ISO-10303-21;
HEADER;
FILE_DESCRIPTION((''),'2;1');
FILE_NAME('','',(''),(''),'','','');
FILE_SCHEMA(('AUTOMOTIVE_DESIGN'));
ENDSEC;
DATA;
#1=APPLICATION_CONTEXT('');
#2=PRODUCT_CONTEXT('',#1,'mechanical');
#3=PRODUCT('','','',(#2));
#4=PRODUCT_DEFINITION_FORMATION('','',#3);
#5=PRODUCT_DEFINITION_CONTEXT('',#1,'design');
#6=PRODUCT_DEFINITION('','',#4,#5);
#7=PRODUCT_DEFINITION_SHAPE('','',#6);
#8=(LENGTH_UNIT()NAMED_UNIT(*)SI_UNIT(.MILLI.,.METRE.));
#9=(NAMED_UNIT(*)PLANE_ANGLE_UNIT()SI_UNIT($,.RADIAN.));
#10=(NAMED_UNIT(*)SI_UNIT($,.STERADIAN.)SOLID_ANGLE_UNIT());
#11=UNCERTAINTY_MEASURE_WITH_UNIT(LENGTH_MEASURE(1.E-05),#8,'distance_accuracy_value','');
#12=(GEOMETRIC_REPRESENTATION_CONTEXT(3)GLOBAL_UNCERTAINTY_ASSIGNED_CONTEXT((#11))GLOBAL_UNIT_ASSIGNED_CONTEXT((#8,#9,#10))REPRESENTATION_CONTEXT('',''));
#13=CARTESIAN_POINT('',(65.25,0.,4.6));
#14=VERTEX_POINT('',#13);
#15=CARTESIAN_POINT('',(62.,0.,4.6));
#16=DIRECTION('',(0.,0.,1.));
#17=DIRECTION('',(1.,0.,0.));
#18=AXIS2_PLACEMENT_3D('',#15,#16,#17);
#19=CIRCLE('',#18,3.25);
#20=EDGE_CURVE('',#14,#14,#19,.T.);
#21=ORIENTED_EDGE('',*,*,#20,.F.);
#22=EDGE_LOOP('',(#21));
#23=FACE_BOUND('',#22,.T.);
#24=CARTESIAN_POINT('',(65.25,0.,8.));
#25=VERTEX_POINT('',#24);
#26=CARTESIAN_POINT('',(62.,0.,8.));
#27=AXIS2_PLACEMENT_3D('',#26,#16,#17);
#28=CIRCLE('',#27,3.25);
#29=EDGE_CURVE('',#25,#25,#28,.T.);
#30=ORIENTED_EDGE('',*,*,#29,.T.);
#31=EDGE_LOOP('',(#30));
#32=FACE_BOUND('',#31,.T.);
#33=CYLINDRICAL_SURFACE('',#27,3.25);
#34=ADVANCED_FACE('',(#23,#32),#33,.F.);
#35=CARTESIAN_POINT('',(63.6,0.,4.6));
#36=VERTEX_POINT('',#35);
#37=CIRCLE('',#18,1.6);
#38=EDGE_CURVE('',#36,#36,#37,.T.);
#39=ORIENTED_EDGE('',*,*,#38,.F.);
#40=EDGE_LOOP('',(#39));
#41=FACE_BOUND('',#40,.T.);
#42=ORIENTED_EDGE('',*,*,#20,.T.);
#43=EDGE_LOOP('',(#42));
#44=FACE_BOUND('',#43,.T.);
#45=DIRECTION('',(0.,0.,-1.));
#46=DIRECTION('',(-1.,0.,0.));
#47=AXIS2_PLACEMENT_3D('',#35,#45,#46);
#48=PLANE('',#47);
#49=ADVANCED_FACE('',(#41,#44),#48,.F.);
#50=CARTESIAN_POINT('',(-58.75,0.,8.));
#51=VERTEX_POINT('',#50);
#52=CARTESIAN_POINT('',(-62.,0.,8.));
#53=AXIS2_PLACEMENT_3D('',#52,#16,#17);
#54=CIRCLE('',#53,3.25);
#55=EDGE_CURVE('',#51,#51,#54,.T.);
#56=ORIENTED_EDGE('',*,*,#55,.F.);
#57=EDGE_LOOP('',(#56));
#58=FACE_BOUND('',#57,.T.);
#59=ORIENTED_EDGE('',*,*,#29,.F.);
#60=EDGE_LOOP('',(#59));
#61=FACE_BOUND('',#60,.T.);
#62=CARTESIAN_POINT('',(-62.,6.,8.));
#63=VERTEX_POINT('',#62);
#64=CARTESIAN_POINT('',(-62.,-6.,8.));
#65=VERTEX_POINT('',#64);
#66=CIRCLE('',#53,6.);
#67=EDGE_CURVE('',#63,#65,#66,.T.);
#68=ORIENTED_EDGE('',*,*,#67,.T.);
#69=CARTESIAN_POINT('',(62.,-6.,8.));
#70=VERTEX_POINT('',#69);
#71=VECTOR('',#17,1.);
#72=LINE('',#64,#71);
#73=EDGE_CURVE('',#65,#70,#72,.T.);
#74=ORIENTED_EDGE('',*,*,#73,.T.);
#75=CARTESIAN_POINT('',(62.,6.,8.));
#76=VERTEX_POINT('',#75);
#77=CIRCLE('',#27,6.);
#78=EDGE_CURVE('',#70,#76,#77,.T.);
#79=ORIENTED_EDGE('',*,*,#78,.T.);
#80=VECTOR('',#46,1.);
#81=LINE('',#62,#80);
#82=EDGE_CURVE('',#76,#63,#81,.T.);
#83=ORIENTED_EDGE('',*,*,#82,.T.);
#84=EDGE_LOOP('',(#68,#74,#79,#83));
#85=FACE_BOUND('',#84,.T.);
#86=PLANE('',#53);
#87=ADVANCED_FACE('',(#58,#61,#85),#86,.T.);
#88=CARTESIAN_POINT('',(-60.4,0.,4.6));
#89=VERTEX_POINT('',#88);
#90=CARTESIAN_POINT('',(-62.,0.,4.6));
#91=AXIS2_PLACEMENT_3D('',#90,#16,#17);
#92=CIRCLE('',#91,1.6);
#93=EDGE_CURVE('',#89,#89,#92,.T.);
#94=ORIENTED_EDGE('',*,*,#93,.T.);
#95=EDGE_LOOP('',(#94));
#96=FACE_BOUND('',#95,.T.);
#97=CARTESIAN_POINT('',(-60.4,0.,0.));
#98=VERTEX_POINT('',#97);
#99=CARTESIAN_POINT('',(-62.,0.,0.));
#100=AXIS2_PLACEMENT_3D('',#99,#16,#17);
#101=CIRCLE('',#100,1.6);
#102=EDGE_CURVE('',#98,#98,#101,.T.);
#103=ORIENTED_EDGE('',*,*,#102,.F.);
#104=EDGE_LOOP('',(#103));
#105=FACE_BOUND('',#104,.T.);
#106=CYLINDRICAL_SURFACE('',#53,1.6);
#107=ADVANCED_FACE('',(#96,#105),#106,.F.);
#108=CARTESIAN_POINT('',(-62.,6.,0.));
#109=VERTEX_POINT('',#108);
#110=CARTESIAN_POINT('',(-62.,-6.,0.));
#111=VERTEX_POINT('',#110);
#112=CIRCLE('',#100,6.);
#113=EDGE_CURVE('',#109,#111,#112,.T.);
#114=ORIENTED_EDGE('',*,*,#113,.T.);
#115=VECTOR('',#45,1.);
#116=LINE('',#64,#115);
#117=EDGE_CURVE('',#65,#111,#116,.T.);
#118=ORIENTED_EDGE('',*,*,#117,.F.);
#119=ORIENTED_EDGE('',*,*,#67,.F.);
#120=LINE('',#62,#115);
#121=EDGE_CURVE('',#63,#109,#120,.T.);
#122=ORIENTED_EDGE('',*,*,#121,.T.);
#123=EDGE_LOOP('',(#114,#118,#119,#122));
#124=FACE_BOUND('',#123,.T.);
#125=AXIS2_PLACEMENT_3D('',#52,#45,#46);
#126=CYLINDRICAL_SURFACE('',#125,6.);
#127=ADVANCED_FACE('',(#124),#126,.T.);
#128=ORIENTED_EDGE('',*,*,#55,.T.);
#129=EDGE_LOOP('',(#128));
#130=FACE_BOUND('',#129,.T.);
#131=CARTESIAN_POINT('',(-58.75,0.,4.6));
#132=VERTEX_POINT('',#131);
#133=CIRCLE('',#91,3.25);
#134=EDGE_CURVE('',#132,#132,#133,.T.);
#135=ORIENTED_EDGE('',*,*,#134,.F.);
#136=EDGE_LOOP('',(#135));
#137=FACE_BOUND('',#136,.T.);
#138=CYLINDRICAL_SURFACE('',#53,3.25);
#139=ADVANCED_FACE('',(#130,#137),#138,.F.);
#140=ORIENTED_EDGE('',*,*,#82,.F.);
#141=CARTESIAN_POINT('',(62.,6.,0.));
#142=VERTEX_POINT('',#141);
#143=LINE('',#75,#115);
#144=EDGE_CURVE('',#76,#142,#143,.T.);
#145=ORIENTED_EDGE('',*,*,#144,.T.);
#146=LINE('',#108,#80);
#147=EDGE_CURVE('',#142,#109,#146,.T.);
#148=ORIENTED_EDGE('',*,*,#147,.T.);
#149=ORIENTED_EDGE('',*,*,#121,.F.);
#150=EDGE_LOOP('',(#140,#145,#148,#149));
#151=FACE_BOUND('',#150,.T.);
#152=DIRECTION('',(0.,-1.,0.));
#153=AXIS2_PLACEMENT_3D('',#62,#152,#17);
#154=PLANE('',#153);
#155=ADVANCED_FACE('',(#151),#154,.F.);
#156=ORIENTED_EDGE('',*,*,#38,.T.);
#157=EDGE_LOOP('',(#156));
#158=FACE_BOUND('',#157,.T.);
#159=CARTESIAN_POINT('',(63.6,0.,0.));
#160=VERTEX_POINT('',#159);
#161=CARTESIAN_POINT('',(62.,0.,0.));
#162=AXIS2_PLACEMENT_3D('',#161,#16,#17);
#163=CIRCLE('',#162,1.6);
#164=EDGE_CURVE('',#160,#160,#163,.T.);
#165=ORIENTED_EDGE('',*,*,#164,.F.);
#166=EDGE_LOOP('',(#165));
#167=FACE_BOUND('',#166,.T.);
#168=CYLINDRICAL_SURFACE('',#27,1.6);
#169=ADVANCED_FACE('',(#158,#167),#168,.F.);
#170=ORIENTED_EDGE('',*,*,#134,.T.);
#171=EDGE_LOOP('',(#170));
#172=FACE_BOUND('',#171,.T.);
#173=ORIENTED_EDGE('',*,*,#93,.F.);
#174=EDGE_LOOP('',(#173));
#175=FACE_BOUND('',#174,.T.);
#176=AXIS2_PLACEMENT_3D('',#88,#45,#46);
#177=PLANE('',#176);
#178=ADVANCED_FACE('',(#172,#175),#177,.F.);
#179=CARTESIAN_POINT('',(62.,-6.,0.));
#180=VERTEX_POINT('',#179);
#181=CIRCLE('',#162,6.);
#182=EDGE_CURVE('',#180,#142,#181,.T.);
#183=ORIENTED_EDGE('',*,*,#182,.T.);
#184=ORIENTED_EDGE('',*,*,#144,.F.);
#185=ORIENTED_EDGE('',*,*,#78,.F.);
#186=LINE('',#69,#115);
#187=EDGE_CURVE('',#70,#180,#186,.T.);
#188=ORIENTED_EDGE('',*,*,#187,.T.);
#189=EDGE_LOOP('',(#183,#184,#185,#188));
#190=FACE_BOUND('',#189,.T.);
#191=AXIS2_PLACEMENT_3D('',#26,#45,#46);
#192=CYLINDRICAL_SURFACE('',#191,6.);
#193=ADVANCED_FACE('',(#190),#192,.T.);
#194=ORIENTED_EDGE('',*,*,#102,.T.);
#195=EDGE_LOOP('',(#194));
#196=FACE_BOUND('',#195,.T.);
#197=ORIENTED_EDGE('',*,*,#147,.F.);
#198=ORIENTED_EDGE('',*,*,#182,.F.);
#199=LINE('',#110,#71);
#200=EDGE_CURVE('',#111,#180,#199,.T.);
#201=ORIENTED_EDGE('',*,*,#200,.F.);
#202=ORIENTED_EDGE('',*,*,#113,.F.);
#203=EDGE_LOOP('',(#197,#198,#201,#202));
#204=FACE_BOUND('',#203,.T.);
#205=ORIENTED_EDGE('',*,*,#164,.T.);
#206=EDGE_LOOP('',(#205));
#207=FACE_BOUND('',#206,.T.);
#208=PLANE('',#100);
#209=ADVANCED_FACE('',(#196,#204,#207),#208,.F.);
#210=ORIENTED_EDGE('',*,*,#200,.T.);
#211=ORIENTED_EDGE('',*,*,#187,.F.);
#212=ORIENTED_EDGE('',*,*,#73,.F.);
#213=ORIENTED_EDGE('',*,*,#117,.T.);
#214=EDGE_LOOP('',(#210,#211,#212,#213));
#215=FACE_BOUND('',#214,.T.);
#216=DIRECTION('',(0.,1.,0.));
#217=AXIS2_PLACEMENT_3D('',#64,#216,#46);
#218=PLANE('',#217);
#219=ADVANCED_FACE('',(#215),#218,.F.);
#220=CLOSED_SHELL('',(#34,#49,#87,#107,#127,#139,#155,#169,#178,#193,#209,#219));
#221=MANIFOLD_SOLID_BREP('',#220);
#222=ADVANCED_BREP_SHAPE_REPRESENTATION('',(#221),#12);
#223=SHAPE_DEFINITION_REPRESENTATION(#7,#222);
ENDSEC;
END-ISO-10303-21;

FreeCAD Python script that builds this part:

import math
import FreeCAD as App
import Part
import Sketcher
from FreeCAD import Vector

doc = App.newDocument("Part")
body = doc.addObject("PartDesign::Body", "Body")

# Sketch on XY plane
sketch1 = doc.addObject("Sketcher::SketchObject", "Sketch")
body.addObject(sketch1)
sketch1.AttachmentSupport = (doc.XY_Plane, [""])
sketch1.MapMode = "FlatFace"
sketch1.addGeometry(Part.LineSegment(Vector(62, 6, 0), Vector(-62, 6, 0)), False)
sketch1.addGeometry(Part.ArcOfCircle(Part.Circle(Vector(-62, 0, 0), Vector(0, 0, 1), 6), math.radians(90), math.radians(270)), False)
sketch1.addGeometry(Part.LineSegment(Vector(-62, -6, 0), Vector(62, -6, 0)), False)
sketch1.addGeometry(Part.ArcOfCircle(Part.Circle(Vector(62, 0, 0), Vector(0, 0, 1), 6), math.radians(-90), math.radians(90)), False)
sketch1.addConstraint(Sketcher.Constraint("Tangent", 0, 2, 1, 1))
sketch1.addConstraint(Sketcher.Constraint("Tangent", 1, 2, 2, 1))
sketch1.addConstraint(Sketcher.Constraint("Tangent", 2, 2, 3, 1))
sketch1.addConstraint(Sketcher.Constraint("Tangent", 3, 2, 0, 1))
sketch1.addConstraint(Sketcher.Constraint("Horizontal", 0))
sketch1.addConstraint(Sketcher.Constraint("Horizontal", 2))
sketch1.addConstraint(Sketcher.Constraint("Symmetric", 1, 3, 3, 3, -1, 1))
sketch1.addConstraint(Sketcher.Constraint("Radius", 1, 6.0))
sketch1.addConstraint(Sketcher.Constraint("DistanceX", 0, 2, 0, 1, 124.0))
pad1 = doc.addObject("PartDesign::Pad", "Pad")
body.addObject(pad1)
pad1.Profile = sketch1
pad1.Length = 8

# Sketch on XY plane
sketch2 = doc.addObject("Sketcher::SketchObject", "Sketch001")
body.addObject(sketch2)
sketch2.AttachmentSupport = (doc.XY_Plane, [""])
sketch2.MapMode = "FlatFace"
sketch2.AttachmentOffset = App.Placement(Vector(0, 0, 8), App.Rotation())
sketch2.addGeometry(Part.Circle(Vector(-62, 0, 0), Vector(0, 0, 1), 1.6), False)
sketch2.addGeometry(Part.Circle(Vector(62, 0, 0), Vector(0, 0, 1), 1.6), False)
sketch2.addConstraint(Sketcher.Constraint("Equal", 0, 1))
sketch2.addConstraint(Sketcher.Constraint("Symmetric", 0, 3, 1, 3, -1, 1))
sketch2.addConstraint(Sketcher.Constraint("PointOnObject", 0, 3, -1))
sketch2.addConstraint(Sketcher.Constraint("Diameter", 0, 3.2))
sketch2.addConstraint(Sketcher.Constraint("DistanceX", 0, 3, -1, 1, 62.0))
doc.recompute()
hole = doc.addObject("PartDesign::Hole", "Hole")
body.addObject(hole)
hole.Profile = sketch2
hole.ThreadType = "None"
hole.Diameter = 3.2
hole.DepthType = "ThroughAll"
hole.HoleCutType = "Counterbore"
hole.HoleCutDiameter = 6.5
hole.HoleCutDepth = 3.4

doc.recompute()
